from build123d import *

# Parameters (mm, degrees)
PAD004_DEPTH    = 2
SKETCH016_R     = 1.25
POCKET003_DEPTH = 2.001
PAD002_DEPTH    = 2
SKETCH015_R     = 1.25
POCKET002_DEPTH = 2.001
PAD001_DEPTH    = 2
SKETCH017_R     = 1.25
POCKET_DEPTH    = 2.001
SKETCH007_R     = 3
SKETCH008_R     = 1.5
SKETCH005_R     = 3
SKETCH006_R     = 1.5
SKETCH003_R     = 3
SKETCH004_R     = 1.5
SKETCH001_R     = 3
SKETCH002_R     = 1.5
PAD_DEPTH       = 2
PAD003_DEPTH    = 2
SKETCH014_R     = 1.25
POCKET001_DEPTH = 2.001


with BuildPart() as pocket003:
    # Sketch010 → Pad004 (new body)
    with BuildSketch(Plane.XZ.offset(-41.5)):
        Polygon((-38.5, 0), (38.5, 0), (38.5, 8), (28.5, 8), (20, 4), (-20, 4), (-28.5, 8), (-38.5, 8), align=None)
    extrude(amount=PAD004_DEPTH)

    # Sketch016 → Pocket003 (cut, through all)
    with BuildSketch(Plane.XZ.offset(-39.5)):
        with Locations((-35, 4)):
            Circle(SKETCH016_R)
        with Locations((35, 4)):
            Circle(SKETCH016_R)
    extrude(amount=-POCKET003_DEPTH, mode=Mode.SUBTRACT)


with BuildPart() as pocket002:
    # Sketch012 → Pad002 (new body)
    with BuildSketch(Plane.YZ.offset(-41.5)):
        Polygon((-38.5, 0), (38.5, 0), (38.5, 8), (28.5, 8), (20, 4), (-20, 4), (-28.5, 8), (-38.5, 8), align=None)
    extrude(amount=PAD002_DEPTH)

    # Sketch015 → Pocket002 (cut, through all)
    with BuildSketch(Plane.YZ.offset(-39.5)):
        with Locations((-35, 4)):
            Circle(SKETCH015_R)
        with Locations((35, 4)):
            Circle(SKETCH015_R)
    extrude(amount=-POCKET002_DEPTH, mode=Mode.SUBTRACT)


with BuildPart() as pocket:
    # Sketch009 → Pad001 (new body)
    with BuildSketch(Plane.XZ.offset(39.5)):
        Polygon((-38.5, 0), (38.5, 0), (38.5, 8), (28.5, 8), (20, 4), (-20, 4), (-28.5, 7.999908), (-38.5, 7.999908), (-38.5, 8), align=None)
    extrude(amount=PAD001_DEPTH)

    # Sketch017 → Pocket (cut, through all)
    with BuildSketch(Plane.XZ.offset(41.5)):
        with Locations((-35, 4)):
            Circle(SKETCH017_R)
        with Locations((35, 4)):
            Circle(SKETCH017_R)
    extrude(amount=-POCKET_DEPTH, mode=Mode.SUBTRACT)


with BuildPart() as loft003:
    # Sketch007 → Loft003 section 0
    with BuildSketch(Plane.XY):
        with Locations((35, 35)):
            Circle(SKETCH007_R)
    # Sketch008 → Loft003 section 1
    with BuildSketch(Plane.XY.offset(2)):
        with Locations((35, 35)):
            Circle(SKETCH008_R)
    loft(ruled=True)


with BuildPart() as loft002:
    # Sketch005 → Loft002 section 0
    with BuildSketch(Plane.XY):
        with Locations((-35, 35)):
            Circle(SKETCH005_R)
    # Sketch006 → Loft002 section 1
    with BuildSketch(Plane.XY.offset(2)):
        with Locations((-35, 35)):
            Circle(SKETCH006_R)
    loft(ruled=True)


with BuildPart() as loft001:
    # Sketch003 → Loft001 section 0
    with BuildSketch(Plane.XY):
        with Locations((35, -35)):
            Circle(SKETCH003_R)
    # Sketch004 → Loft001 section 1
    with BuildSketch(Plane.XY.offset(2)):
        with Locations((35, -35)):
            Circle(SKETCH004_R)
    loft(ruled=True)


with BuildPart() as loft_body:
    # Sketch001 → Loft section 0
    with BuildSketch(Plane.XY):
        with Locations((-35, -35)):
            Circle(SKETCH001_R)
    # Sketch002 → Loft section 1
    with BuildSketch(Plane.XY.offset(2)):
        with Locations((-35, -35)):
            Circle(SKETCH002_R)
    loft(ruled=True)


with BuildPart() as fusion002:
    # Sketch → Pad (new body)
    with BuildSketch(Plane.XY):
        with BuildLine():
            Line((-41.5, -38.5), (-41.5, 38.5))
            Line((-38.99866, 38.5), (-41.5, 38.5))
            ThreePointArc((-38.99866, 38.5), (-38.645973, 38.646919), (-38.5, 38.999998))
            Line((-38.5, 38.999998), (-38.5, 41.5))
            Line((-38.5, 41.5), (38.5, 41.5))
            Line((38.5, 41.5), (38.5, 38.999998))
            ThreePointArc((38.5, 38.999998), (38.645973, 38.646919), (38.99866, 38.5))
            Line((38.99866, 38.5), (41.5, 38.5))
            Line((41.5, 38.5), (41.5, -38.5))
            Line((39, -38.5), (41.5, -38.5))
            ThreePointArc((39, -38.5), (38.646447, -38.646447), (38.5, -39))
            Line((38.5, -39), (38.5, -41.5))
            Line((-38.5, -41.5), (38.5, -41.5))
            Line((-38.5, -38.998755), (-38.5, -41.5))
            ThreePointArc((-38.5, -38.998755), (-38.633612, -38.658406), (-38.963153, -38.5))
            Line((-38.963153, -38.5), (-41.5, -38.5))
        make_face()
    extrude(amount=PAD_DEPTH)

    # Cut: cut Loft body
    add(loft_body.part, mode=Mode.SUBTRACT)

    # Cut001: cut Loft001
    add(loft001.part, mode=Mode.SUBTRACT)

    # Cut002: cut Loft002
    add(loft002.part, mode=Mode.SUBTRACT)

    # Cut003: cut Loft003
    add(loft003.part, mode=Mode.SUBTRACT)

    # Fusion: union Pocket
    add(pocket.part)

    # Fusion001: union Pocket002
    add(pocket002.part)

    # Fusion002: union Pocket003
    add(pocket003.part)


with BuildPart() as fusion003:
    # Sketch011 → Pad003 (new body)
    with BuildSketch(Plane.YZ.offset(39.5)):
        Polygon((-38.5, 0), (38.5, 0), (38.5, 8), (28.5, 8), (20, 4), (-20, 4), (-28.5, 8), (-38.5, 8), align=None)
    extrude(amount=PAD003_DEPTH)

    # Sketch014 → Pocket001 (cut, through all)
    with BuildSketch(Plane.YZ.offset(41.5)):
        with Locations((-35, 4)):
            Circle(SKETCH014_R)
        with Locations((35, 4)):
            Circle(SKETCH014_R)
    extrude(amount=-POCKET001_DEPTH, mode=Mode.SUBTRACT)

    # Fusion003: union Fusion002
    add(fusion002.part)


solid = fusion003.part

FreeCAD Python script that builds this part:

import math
import FreeCAD as App
import Part
import Sketcher
Q = App.Units.Quantity


def add_polygon(sketch, points):
    """Adds a closed chain of lines whose ends are joined by coincident constraints."""
    first, n = sketch.GeometryCount, len(points)
    for a, b in zip(points, points[1:] + points[:1]):
        sketch.addGeometry(Part.LineSegment(App.Vector(*a, 0), App.Vector(*b, 0)), False)
    for i in range(n):
        sketch.addConstraint(Sketcher.Constraint("Coincident", first + i, 2, first + (i + 1) % n, 1))

doc = App.newDocument("Part")
body = doc.addObject("PartDesign::Body", "Body")

sketch1 = body.newObject("Sketcher::SketchObject", "Sketch")
sketch1.AttachmentSupport = (doc.getObject("XZ_Plane"), [""])
sketch1.MapMode = "FlatFace"
sketch1.AttachmentOffset = App.Placement(App.Vector(0, 0, -41.5), App.Rotation())
add_polygon(sketch1, [(-38, 0), (38, 0), (38, 8), (28, 8), (20, 4), (-20, 4), (-28, 8), (-38, 8)])
sketch1.addConstraint([
    Sketcher.Constraint("Horizontal", 0),
    Sketcher.Constraint("Vertical", 1),
    Sketcher.Constraint("Horizontal", 2),
    Sketcher.Constraint("Horizontal", 4),
    Sketcher.Constraint("Horizontal", 6),
    Sketcher.Constraint("Vertical", 7),
    Sketcher.Constraint("Symmetric", 0, 2, 7, 2, -1, 1),
    Sketcher.Constraint("Symmetric", 2, 2, 5, 2, -2),
    Sketcher.Constraint("Equal", 3, 5),
    Sketcher.Constraint("DistanceX", 0, 1, 0, 2, Q("77 mm")),
    Sketcher.Constraint("DistanceX", 2, 2, 2, 1, Q("10 mm")),
    Sketcher.Constraint("DistanceX", 4, 2, 4, 1, Q("40 mm")),
    Sketcher.Constraint("DistanceY", 1, 1, 1, 2, Q("8 mm")),
    Sketcher.Constraint("DistanceY", -1, 1, 3, 2, Q("4 mm")),
])
pad1 = body.newObject("PartDesign::Pad", "Pad")
pad1.Profile = sketch1
pad1.Length = 2

sketch2 = body.newObject("Sketcher::SketchObject", "Sketch001")
sketch2.AttachmentSupport = (doc.getObject("XZ_Plane"), [""])
sketch2.MapMode = "FlatFace"
sketch2.AttachmentOffset = App.Placement(App.Vector(0, 0, -39.5), App.Rotation())
sketch2.addGeometry([
    Part.Circle(App.Vector(-35, 4, 0), App.Vector(0, 0, 1), 1.2),
    Part.Circle(App.Vector(35, 4, 0), App.Vector(0, 0, 1), 1.2),
], False)
sketch2.addConstraint([
    Sketcher.Constraint("Equal", 0, 1),
    Sketcher.Constraint("Symmetric", 0, 3, 1, 3, -2),
    Sketcher.Constraint("Diameter", 0, Q("2.5 mm")),
    Sketcher.Constraint("DistanceX", 0, 3, -1, 1, Q("35 mm")),
    Sketcher.Constraint("DistanceY", -1, 1, 0, 3, Q("4 mm")),
])
pocket1 = body.newObject("PartDesign::Pocket", "Pocket")
pocket1.Profile = sketch2
pocket1.Type = "ThroughAll"
body2 = doc.addObject("PartDesign::Body", "Body001")

sketch3 = body2.newObject("Sketcher::SketchObject", "Sketch002")
sketch3.AttachmentSupport = (doc.getObject("YZ_Plane001"), [""])
sketch3.MapMode = "FlatFace"
sketch3.AttachmentOffset = App.Placement(App.Vector(0, 0, -41.5), App.Rotation())
add_polygon(sketch3, [(-38, 0), (38, 0), (38, 8), (28, 8), (20, 4), (-20, 4), (-28, 8), (-38, 8)])
sketch3.addConstraint([
    Sketcher.Constraint("Horizontal", 0),
    Sketcher.Constraint("Vertical", 1),
    Sketcher.Constraint("Horizontal", 2),
    Sketcher.Constraint("Horizontal", 4),
    Sketcher.Constraint("Horizontal", 6),
    Sketcher.Constraint("Vertical", 7),
    Sketcher.Constraint("Symmetric", 0, 2, 7, 2, -1, 1),
    Sketcher.Constraint("Symmetric", 2, 2, 5, 2, -2),
    Sketcher.Constraint("Equal", 3, 5),
    Sketcher.Constraint("DistanceX", 0, 1, 0, 2, Q("77 mm")),
    Sketcher.Constraint("DistanceX", 2, 2, 2, 1, Q("10 mm")),
    Sketcher.Constraint("DistanceX", 4, 2, 4, 1, Q("40 mm")),
    Sketcher.Constraint("DistanceY", 1, 1, 1, 2, Q("8 mm")),
    Sketcher.Constraint("DistanceY", -1, 1, 3, 2, Q("4 mm")),
])
pad2 = body2.newObject("PartDesign::Pad", "Pad001")
pad2.Profile = sketch3
pad2.Length = 2

sketch4 = body2.newObject("Sketcher::SketchObject", "Sketch003")
sketch4.AttachmentSupport = (doc.getObject("YZ_Plane001"), [""])
sketch4.MapMode = "FlatFace"
sketch4.AttachmentOffset = App.Placement(App.Vector(0, 0, -39.5), App.Rotation())
sketch4.addGeometry([
    Part.Circle(App.Vector(-35, 4, 0), App.Vector(0, 0, 1), 1.2),
    Part.Circle(App.Vector(35, 4, 0), App.Vector(0, 0, 1), 1.2),
], False)
sketch4.addConstraint([
    Sketcher.Constraint("Equal", 0, 1),
    Sketcher.Constraint("Symmetric", 0, 3, 1, 3, -2),
    Sketcher.Constraint("Diameter", 0, Q("2.5 mm")),
    Sketcher.Constraint("DistanceX", 0, 3, -1, 1, Q("35 mm")),
    Sketcher.Constraint("DistanceY", -1, 1, 0, 3, Q("4 mm")),
])
pocket2 = body2.newObject("PartDesign::Pocket", "Pocket001")
pocket2.Profile = sketch4
pocket2.Type = "ThroughAll"
body3 = doc.addObject("PartDesign::Body", "Body002")

sketch5 = body3.newObject("Sketcher::SketchObject", "Sketch004")
sketch5.AttachmentSupport = (doc.getObject("XZ_Plane002"), [""])
sketch5.MapMode = "FlatFace"
sketch5.AttachmentOffset = App.Placement(App.Vector(0, 0, 39.5), App.Rotation())
add_polygon(sketch5, [(-38, 0), (38, 0), (38, 8), (28, 8), (20, 4), (-20, 4), (-28, 8), (-38, 8)])
sketch5.addConstraint([
    Sketcher.Constraint("Horizontal", 0),
    Sketcher.Constraint("Vertical", 1),
    Sketcher.Constraint("Horizontal", 2),
    Sketcher.Constraint("Horizontal", 4),
    Sketcher.Constraint("Horizontal", 6),
    Sketcher.Constraint("Vertical", 7),
    Sketcher.Constraint("Symmetric", 0, 2, 7, 2, -1, 1),
    Sketcher.Constraint("Equal", 2, 6),
    Sketcher.Constraint("DistanceX", 0, 1, 0, 2, Q("77 mm")),
    Sketcher.Constraint("DistanceX", 2, 2, 2, 1, Q("10 mm")),
    Sketcher.Constraint("DistanceX", 4, 2, 4, 1, Q("40 mm")),
    Sketcher.Constraint("DistanceY", 1, 1, 1, 2, Q("8 mm")),
    Sketcher.Constraint("DistanceX", -1, 1, 3, 2, Q("20 mm")),
    Sketcher.Constraint("DistanceY", -1, 1, 3, 2, Q("4 mm")),
    Sketcher.Constraint("DistanceY", 7, 2, 7, 1, Q("7.999908 mm")),
])
pad3 = body3.newObject("PartDesign::Pad", "Pad002")
pad3.Profile = sketch5
pad3.Length = 2

sketch6 = body3.newObject("Sketcher::SketchObject", "Sketch005")
sketch6.AttachmentSupport = (doc.getObject("XZ_Plane002"), [""])
sketch6.MapMode = "FlatFace"
sketch6.AttachmentOffset = App.Placement(App.Vector(0, 0, 41.5), App.Rotation())
sketch6.addGeometry([
    Part.Circle(App.Vector(-35, 4, 0), App.Vector(0, 0, 1), 1.2),
    Part.Circle(App.Vector(35, 4, 0), App.Vector(0, 0, 1), 1.2),
], False)
sketch6.addConstraint([
    Sketcher.Constraint("Equal", 0, 1),
    Sketcher.Constraint("Symmetric", 0, 3, 1, 3, -2),
    Sketcher.Constraint("Diameter", 0, Q("2.5 mm")),
    Sketcher.Constraint("DistanceX", 0, 3, -1, 1, Q("35 mm")),
    Sketcher.Constraint("DistanceY", -1, 1, 0, 3, Q("4 mm")),
])
pocket3 = body3.newObject("PartDesign::Pocket", "Pocket002")
pocket3.Profile = sketch6
pocket3.Type = "ThroughAll"
body4 = doc.addObject("PartDesign::Body", "Body003")

sketch7 = body4.newObject("Sketcher::SketchObject", "Sketch006")
sketch7.AttachmentSupport = (doc.getObject("XY_Plane003"), [""])
sketch7.MapMode = "FlatFace"
sketch7.addGeometry(Part.Circle(App.Vector(35, 35, 0), App.Vector(0, 0, 1), 3), False)
sketch7.addConstraint([
    Sketcher.Constraint("Diameter", 0, Q("6 mm")),
    Sketcher.Constraint("DistanceX", -1, 1, 0, 3, Q("35 mm")),
    Sketcher.Constraint("DistanceY", -1, 1, 0, 3, Q("35 mm")),
])

sketch8 = body4.newObject("Sketcher::SketchObject", "Sketch007")
sketch8.AttachmentSupport = (doc.getObject("XY_Plane003"), [""])
sketch8.MapMode = "FlatFace"
sketch8.AttachmentOffset = App.Placement(App.Vector(0, 0, 2), App.Rotation())
sketch8.addGeometry(Part.Circle(App.Vector(35, 35, 0), App.Vector(0, 0, 1), 1.5), False)
sketch8.addConstraint([
    Sketcher.Constraint("Diameter", 0, Q("3 mm")),
    Sketcher.Constraint("DistanceX", -1, 1, 0, 3, Q("35 mm")),
    Sketcher.Constraint("DistanceY", -1, 1, 0, 3, Q("35 mm")),
])

additiveloft = body4.newObject("PartDesign::AdditiveLoft", "AdditiveLoft")
additiveloft.Profile = sketch7
additiveloft.Sections = [sketch8]
additiveloft.Ruled = True
body5 = doc.addObject("PartDesign::Body", "Body004")

sketch9 = body5.newObject("Sketcher::SketchObject", "Sketch008")
sketch9.AttachmentSupport = (doc.getObject("XY_Plane004"), [""])
sketch9.MapMode = "FlatFace"
sketch9.addGeometry(Part.Circle(App.Vector(-35, 35, 0), App.Vector(0, 0, 1), 3), False)
sketch9.addConstraint([
    Sketcher.Constraint("Diameter", 0, Q("6 mm")),
    Sketcher.Constraint("DistanceX", 0, 3, -1, 1, Q("35 mm")),
    Sketcher.Constraint("DistanceY", -1, 1, 0, 3, Q("35 mm")),
])

sketch10 = body5.newObject("Sketcher::SketchObject", "Sketch009")
sketch10.AttachmentSupport = (doc.getObject("XY_Plane004"), [""])
sketch10.MapMode = "FlatFace"
sketch10.AttachmentOffset = App.Placement(App.Vector(0, 0, 2), App.Rotation())
sketch10.addGeometry(Part.Circle(App.Vector(-35, 35, 0), App.Vector(0, 0, 1), 1.5), False)
sketch10.addConstraint([
    Sketcher.Constraint("Diameter", 0, Q("3 mm")),
    Sketcher.Constraint("DistanceX", 0, 3, -1, 1, Q("35 mm")),
    Sketcher.Constraint("DistanceY", -1, 1, 0, 3, Q("35 mm")),
])

additiveloft2 = body5.newObject("PartDesign::AdditiveLoft", "AdditiveLoft001")
additiveloft2.Profile = sketch9
additiveloft2.Sections = [sketch10]
additiveloft2.Ruled = True
body6 = doc.addObject("PartDesign::Body", "Body005")

sketch11 = body6.newObject("Sketcher::SketchObject", "Sketch010")
sketch11.AttachmentSupport = (doc.getObject("XY_Plane005"), [""])
sketch11.MapMode = "FlatFace"
sketch11.addGeometry(Part.Circle(App.Vector(35, -35, 0), App.Vector(0, 0, 1), 3), False)
sketch11.addConstraint([
    Sketcher.Constraint("Diameter", 0, Q("6 mm")),
    Sketcher.Constraint("DistanceX", -1, 1, 0, 3, Q("35 mm")),
    Sketcher.Constraint("DistanceY", 0, 3, -1, 1, Q("35 mm")),
])

sketch12 = body6.newObject("Sketcher::SketchObject", "Sketch011")
sketch12.AttachmentSupport = (doc.getObject("XY_Plane005"), [""])
sketch12.MapMode = "FlatFace"
sketch12.AttachmentOffset = App.Placement(App.Vector(0, 0, 2), App.Rotation())
sketch12.addGeometry(Part.Circle(App.Vector(35, -35, 0), App.Vector(0, 0, 1), 1.5), False)
sketch12.addConstraint([
    Sketcher.Constraint("Diameter", 0, Q("3 mm")),
    Sketcher.Constraint("DistanceX", -1, 1, 0, 3, Q("35 mm")),
    Sketcher.Constraint("DistanceY", 0, 3, -1, 1, Q("35 mm")),
])

additiveloft3 = body6.newObject("PartDesign::AdditiveLoft", "AdditiveLoft002")
additiveloft3.Profile = sketch11
additiveloft3.Sections = [sketch12]
additiveloft3.Ruled = True
body7 = doc.addObject("PartDesign::Body", "Body006")

sketch13 = body7.newObject("Sketcher::SketchObject", "Sketch012")
sketch13.AttachmentSupport = (doc.getObject("XY_Plane006"), [""])
sketch13.MapMode = "FlatFace"
sketch13.addGeometry(Part.Circle(App.Vector(-35, -35, 0), App.Vector(0, 0, 1), 3), False)
sketch13.addConstraint([
    Sketcher.Constraint("Diameter", 0, Q("6 mm")),
    Sketcher.Constraint("DistanceX", 0, 3, -1, 1, Q("35 mm")),
    Sketcher.Constraint("DistanceY", 0, 3, -1, 1, Q("35 mm")),
])

sketch14 = body7.newObject("Sketcher::SketchObject", "Sketch013")
sketch14.AttachmentSupport = (doc.getObject("XY_Plane006"), [""])
sketch14.MapMode = "FlatFace"
sketch14.AttachmentOffset = App.Placement(App.Vector(0, 0, 2), App.Rotation())
sketch14.addGeometry(Part.Circle(App.Vector(-35, -35, 0), App.Vector(0, 0, 1), 1.5), False)
sketch14.addConstraint([
    Sketcher.Constraint("Diameter", 0, Q("3 mm")),
    Sketcher.Constraint("DistanceX", 0, 3, -1, 1, Q("35 mm")),
    Sketcher.Constraint("DistanceY", 0, 3, -1, 1, Q("35 mm")),
])

additiveloft4 = body7.newObject("PartDesign::AdditiveLoft", "AdditiveLoft003")
additiveloft4.Profile = sketch13
additiveloft4.Sections = [sketch14]
additiveloft4.Ruled = True
body8 = doc.addObject("PartDesign::Body", "Body007")

sketch15 = body8.newObject("Sketcher::SketchObject", "Sketch014")
sketch15.AttachmentSupport = (doc.getObject("XY_Plane007"), [""])
sketch15.MapMode = "FlatFace"
sketch15.addGeometry([
    Part.LineSegment(App.Vector(-41.5, 38.5, 0), App.Vector(-41.5, -38.5, 0)),
    Part.LineSegment(App.Vector(-41.5, -38.5, 0), App.Vector(-38.96, -38.5, 0)),
    Part.ArcOfCircle(Part.Circle(App.Vector(-39, -39, 0), App.Vector(0, 0, 1), 0.5), math.radians(0), math.radians(86)),
    Part.LineSegment(App.Vector(-38.5, -39, 0), App.Vector(-38.5, -41.5, 0)),
    Part.LineSegment(App.Vector(-38.5, -41.5, 0), App.Vector(38.5, -41.5, 0)),
    Part.LineSegment(App.Vector(38.5, -41.5, 0), App.Vector(38.5, -39, 0)),
    Part.ArcOfCircle(Part.Circle(App.Vector(39, -39, 0), App.Vector(0, 0, 1), 0.5), math.radians(90), math.radians(180)),
    Part.LineSegment(App.Vector(39, -38.5, 0), App.Vector(41.5, -38.5, 0)),
    Part.LineSegment(App.Vector(41.5, -38.5, 0), App.Vector(41.5, 38.5, 0)),
    Part.LineSegment(App.Vector(41.5, 38.5, 0), App.Vector(39, 38.5, 0)),
    Part.ArcOfCircle(Part.Circle(App.Vector(39, 39, 0), App.Vector(0, 0, 1), 0.5), math.radians(-180), math.radians(-90)),
    Part.LineSegment(App.Vector(38.5, 39, 0), App.Vector(38.5, 41.5, 0)),
    Part.LineSegment(App.Vector(38.5, 41.5, 0), App.Vector(-38.5, 41.5, 0)),
    Part.LineSegment(App.Vector(-38.5, 41.5, 0), App.Vector(-38.5, 39, 0)),
    Part.ArcOfCircle(Part.Circle(App.Vector(-39, 39, 0), App.Vector(0, 0, 1), 0.5), math.radians(-90), math.radians(0)),
    Part.LineSegment(App.Vector(-39, 38.5, 0), App.Vector(-41.5, 38.5, 0)),
], False)
sketch15.addConstraint([
    Sketcher.Constraint("Coincident", 0, 2, 1, 1),
    Sketcher.Constraint("Coincident", 1, 2, 2, 2),
    Sketcher.Constraint("Coincident", 2, 1, 3, 1),
    Sketcher.Constraint("Coincident", 3, 2, 4, 1),
    Sketcher.Constraint("Coincident", 4, 2, 5, 1),
    Sketcher.Constraint("Coincident", 5, 2, 6, 2),
    Sketcher.Constraint("Coincident", 6, 1, 7, 1),
    Sketcher.Constraint("Coincident", 7, 2, 8, 1),
    Sketcher.Constraint("Coincident", 8, 2, 9, 1),
    Sketcher.Constraint("Coincident", 9, 2, 10, 2),
    Sketcher.Constraint("Tangent", 10, 1, 11, 1),
    Sketcher.Constraint("Coincident", 11, 2, 12, 1),
    Sketcher.Constraint("Coincident", 12, 2, 13, 1),
    Sketcher.Constraint("Tangent", 13, 2, 14, 2),
    Sketcher.Constraint("Coincident", 14, 1, 15, 1),
    Sketcher.Constraint("Coincident", 15, 2, 0, 1),
    Sketcher.Constraint("Vertical", 0),
    Sketcher.Constraint("Horizontal", 1),
    Sketcher.Constraint("Vertical", 3),
    Sketcher.Constraint("Horizontal", 4),
    Sketcher.Constraint("Vertical", 5),
    Sketcher.Constraint("Horizontal", 7),
    Sketcher.Constraint("Vertical", 8),
    Sketcher.Constraint("Horizontal", 9),
    Sketcher.Constraint("Vertical", 11),
    Sketcher.Constraint("Horizontal", 12),
    Sketcher.Constraint("Vertical", 13),
    Sketcher.Constraint("Horizontal", 15),
    Sketcher.Constraint("Equal", 2, 6),
    Sketcher.Constraint("Equal", 6, 10),
    Sketcher.Constraint("Equal", 10, 14),
    Sketcher.Constraint("Symmetric", 6, 3, 14, 3, -1, 1),
    Sketcher.Constraint("Symmetric", 0, 2, 8, 2, -1, 1),
    Sketcher.Constraint("Symmetric", 3, 2, 11, 2, -1, 1),
    Sketcher.Constraint("Symmetric", 10, 3, 14, 3, -2),
    Sketcher.Constraint("Horizontal", 6, 3, 5, 2),
    Sketcher.Constraint("Vertical", 10, 3, 6, 1),
    Sketcher.Constraint("Equal", 9, 15),
    Sketcher.Constraint("Equal", 12, 0),
    Sketcher.Constraint("Equal", 7, 5),
    Sketcher.Constraint("Radius", 2, Q("0.500001 mm")),
    Sketcher.Constraint("DistanceX", 4, 1, 4, 2, Q("77 mm")),
    Sketcher.Constraint("DistanceX", 7, 1, 7, 2, Q("2.5 mm")),
    Sketcher.Constraint("DistanceX", 9, 2, 9, 1, Q("2.50134 mm")),
    Sketcher.Constraint("DistanceX", 1, 1, 1, 2, Q("2.536847 mm")),
    Sketcher.Constraint("DistanceY", 3, 2, 3, 1, Q("2.501245 mm")),
])
pad4 = body8.newObject("PartDesign::Pad", "Pad003")
pad4.Profile = sketch15
pad4.Length = 2
doc.recompute()

boolean = body8.newObject("PartDesign::Boolean", "Boolean")
boolean.Type = "Cut"
boolean.addObjects([body7])
doc.recompute()

boolean2 = body8.newObject("PartDesign::Boolean", "Boolean001")
boolean2.Type = "Cut"
boolean2.addObjects([body6])
doc.recompute()

boolean3 = body8.newObject("PartDesign::Boolean", "Boolean002")
boolean3.Type = "Cut"
boolean3.addObjects([body5])
doc.recompute()

boolean4 = body8.newObject("PartDesign::Boolean", "Boolean003")
boolean4.Type = "Cut"
boolean4.addObjects([body4])
doc.recompute()

boolean5 = body8.newObject("PartDesign::Boolean", "Boolean004")
boolean5.Type = "Fuse"
boolean5.addObjects([body3])
doc.recompute()

boolean6 = body8.newObject("PartDesign::Boolean", "Boolean005")
boolean6.Type = "Fuse"
boolean6.addObjects([body2])
doc.recompute()

boolean7 = body8.newObject("PartDesign::Boolean", "Boolean006")
boolean7.Type = "Fuse"
boolean7.addObjects([body])
body9 = doc.addObject("PartDesign::Body", "Body008")

sketch16 = body9.newObject("Sketcher::SketchObject", "Sketch015")
sketch16.AttachmentSupport = (doc.getObject("YZ_Plane008"), [""])
sketch16.MapMode = "FlatFace"
sketch16.AttachmentOffset = App.Placement(App.Vector(0, 0, 39.5), App.Rotation())
add_polygon(sketch16, [(-38, 0), (38, 0), (38, 8), (28, 8), (20, 4), (-20, 4), (-28, 8), (-38, 8)])
sketch16.addConstraint([
    Sketcher.Constraint("Horizontal", 0),
    Sketcher.Constraint("Vertical", 1),
    Sketcher.Constraint("Horizontal", 2),
    Sketcher.Constraint("Horizontal", 4),
    Sketcher.Constraint("Horizontal", 6),
    Sketcher.Constraint("Vertical", 7),
    Sketcher.Constraint("Symmetric", 0, 2, 7, 2, -1, 1),
    Sketcher.Constraint("Symmetric", 2, 2, 5, 2, -2),
    Sketcher.Constraint("Equal", 3, 5),
    Sketcher.Constraint("DistanceX", 0, 1, 0, 2, Q("77 mm")),
    Sketcher.Constraint("DistanceX", 2, 2, 2, 1, Q("10 mm")),
    Sketcher.Constraint("DistanceX", 4, 2, 4, 1, Q("40 mm")),
    Sketcher.Constraint("DistanceY", 1, 1, 1, 2, Q("8 mm")),
    Sketcher.Constraint("DistanceY", -1, 1, 3, 2, Q("4 mm")),
])
pad5 = body9.newObject("PartDesign::Pad", "Pad004")
pad5.Profile = sketch16
pad5.Length = 2

sketch17 = body9.newObject("Sketcher::SketchObject", "Sketch016")
sketch17.AttachmentSupport = (doc.getObject("YZ_Plane008"), [""])
sketch17.MapMode = "FlatFace"
sketch17.AttachmentOffset = App.Placement(App.Vector(0, 0, 41.5), App.Rotation())
sketch17.addGeometry([
    Part.Circle(App.Vector(-35, 4, 0), App.Vector(0, 0, 1), 1.2),
    Part.Circle(App.Vector(35, 4, 0), App.Vector(0, 0, 1), 1.2),
], False)
sketch17.addConstraint([
    Sketcher.Constraint("Equal", 0, 1),
    Sketcher.Constraint("Symmetric", 0, 3, 1, 3, -2),
    Sketcher.Constraint("Diameter", 0, Q("2.5 mm")),
    Sketcher.Constraint("DistanceX", 0, 3, -1, 1, Q("35 mm")),
    Sketcher.Constraint("DistanceY", -1, 1, 0, 3, Q("4 mm")),
])
pocket4 = body9.newObject("PartDesign::Pocket", "Pocket003")
pocket4.Profile = sketch17
pocket4.Type = "ThroughAll"
doc.recompute()

boolean8 = body9.newObject("PartDesign::Boolean", "Boolean007")
boolean8.Type = "Fuse"
boolean8.addObjects([body8])

doc.recompute()
